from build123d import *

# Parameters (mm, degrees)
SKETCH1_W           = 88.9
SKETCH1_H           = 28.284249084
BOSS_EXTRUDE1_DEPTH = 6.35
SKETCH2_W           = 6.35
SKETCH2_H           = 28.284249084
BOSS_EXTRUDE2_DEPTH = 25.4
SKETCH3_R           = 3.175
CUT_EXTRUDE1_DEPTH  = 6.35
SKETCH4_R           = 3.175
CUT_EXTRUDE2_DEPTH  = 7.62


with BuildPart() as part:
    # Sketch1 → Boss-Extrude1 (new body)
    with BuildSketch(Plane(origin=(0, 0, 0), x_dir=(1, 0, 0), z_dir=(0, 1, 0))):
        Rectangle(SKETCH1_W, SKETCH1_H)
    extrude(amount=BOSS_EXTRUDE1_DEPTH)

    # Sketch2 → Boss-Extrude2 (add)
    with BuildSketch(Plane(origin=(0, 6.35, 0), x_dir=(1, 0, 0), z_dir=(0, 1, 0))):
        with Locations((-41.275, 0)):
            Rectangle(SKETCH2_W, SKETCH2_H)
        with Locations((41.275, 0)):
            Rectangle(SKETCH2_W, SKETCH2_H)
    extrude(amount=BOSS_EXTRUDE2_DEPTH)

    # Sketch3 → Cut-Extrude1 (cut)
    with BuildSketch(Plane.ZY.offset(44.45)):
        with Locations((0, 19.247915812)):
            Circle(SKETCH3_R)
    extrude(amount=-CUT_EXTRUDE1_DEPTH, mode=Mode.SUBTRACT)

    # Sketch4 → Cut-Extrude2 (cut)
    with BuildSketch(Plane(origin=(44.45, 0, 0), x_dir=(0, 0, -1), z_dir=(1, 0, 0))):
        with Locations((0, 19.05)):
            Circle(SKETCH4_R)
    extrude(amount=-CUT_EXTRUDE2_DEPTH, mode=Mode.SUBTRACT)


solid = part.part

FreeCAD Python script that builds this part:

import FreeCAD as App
import Part
import Sketcher
Q = App.Units.Quantity

doc = App.newDocument("Part")
body = doc.addObject("PartDesign::Body", "Body")

sketch1 = body.newObject("Sketcher::SketchObject", "Sketch")
sketch1.AttachmentSupport = (doc.getObject("XZ_Plane"), [""])
sketch1.MapMode = "FlatFace"
sketch1.addGeometry([
    Part.LineSegment(App.Vector(-44, -14, 0), App.Vector(-44, 14, 0)),
    Part.LineSegment(App.Vector(-44, 14, 0), App.Vector(44, 14, 0)),
    Part.LineSegment(App.Vector(44, 14, 0), App.Vector(44, -14, 0)),
    Part.LineSegment(App.Vector(44, -14, 0), App.Vector(-44, -14, 0)),
], False)
sketch1.addConstraint([
    Sketcher.Constraint("Coincident", 0, 2, 1, 1),
    Sketcher.Constraint("Coincident", 1, 2, 2, 1),
    Sketcher.Constraint("Coincident", 2, 2, 3, 1),
    Sketcher.Constraint("Coincident", 3, 2, 0, 1),
    Sketcher.Constraint("Vertical", 0),
    Sketcher.Constraint("Horizontal", 1),
    Sketcher.Constraint("Vertical", 2),
    Sketcher.Constraint("Horizontal", 3),
    Sketcher.Constraint("Symmetric", 0, 2, 2, 2, -1, 1),
    Sketcher.Constraint("DistanceX", 1, 1, 1, 2, Q("3.5 in")),
    Sketcher.Constraint("DistanceY", 0, 1, 0, 2, Q("28.284249 mm")),
])
pad1 = body.newObject("PartDesign::Pad", "Pad")
pad1.Profile = sketch1
pad1.Length = Q("0.25 in")
pad1.Reversed = True

sketch2 = body.newObject("Sketcher::SketchObject", "Sketch001")
sketch2.AttachmentSupport = (doc.getObject("XZ_Plane"), [""])
sketch2.MapMode = "FlatFace"
sketch2.AttachmentOffset = App.Placement(App.Vector(0, 0, -0.25 * 25.4), App.Rotation())
sketch2.addGeometry([
    Part.LineSegment(App.Vector(-44, -14, 0), App.Vector(-44, 14, 0)),
    Part.LineSegment(App.Vector(-44, 14, 0), App.Vector(-38, 14, 0)),
    Part.LineSegment(App.Vector(-38, 14, 0), App.Vector(-38, -14, 0)),
    Part.LineSegment(App.Vector(-38, -14, 0), App.Vector(-44, -14, 0)),
    Part.LineSegment(App.Vector(38, -14, 0), App.Vector(38, 14, 0)),
    Part.LineSegment(App.Vector(38, 14, 0), App.Vector(44, 14, 0)),
    Part.LineSegment(App.Vector(44, 14, 0), App.Vector(44, -14, 0)),
    Part.LineSegment(App.Vector(44, -14, 0), App.Vector(38, -14, 0)),
], False)
sketch2.addConstraint([
    Sketcher.Constraint("Coincident", 0, 2, 1, 1),
    Sketcher.Constraint("Coincident", 1, 2, 2, 1),
    Sketcher.Constraint("Coincident", 2, 2, 3, 1),
    Sketcher.Constraint("Coincident", 3, 2, 0, 1),
    Sketcher.Constraint("Coincident", 4, 2, 5, 1),
    Sketcher.Constraint("Coincident", 5, 2, 6, 1),
    Sketcher.Constraint("Coincident", 6, 2, 7, 1),
    Sketcher.Constraint("Coincident", 7, 2, 4, 1),
    Sketcher.Constraint("Vertical", 0),
    Sketcher.Constraint("Horizontal", 1),
    Sketcher.Constraint("Vertical", 2),
    Sketcher.Constraint("Horizontal", 3),
    Sketcher.Constraint("Vertical", 4),
    Sketcher.Constraint("Horizontal", 5),
    Sketcher.Constraint("Vertical", 6),
    Sketcher.Constraint("Horizontal", 7),
    Sketcher.Constraint("Symmetric", 2, 2, 4, 2, -1, 1),
    Sketcher.Constraint("Symmetric", 0, 2, 6, 2, -1, 1),
    Sketcher.Constraint("Horizontal", 1, 2, 4, 2),
    Sketcher.Constraint("DistanceX", 1, 2, 4, 2, Q("3 in")),
    Sketcher.Constraint("DistanceX", 1, 1, 1, 2, Q("0.25 in")),
    Sketcher.Constraint("DistanceY", 0, 1, 0, 2, Q("28.284249 mm")),
])
pad2 = body.newObject("PartDesign::Pad", "Pad001")
pad2.Profile = sketch2
pad2.Length = Q("1 in")
pad2.Reversed = True

sketch3 = body.newObject("Sketcher::SketchObject", "Sketch002")
sketch3.AttachmentSupport = (doc.getObject("YZ_Plane"), [""])
sketch3.MapMode = "FlatFace"
sketch3.AttachmentOffset = App.Placement(App.Vector(0, 0, -1.75 * 25.4), App.Rotation())
sketch3.addGeometry(Part.Circle(App.Vector(19.2, 0, 0), App.Vector(0, 0, 1), 3.2), False)
sketch3.addConstraint([
    Sketcher.Constraint("PointOnObject", 0, 3, -1),
    Sketcher.Constraint("Diameter", 0, Q("0.25 in")),
    Sketcher.Constraint("DistanceX", -1, 1, 0, 3, Q("19.247916 mm")),
])
pocket1 = body.newObject("PartDesign::Pocket", "Pocket")
pocket1.Profile = sketch3
pocket1.Length = Q("0.25 in")
pocket1.Reversed = True

sketch4 = body.newObject("Sketcher::SketchObject", "Sketch003")
sketch4.AttachmentSupport = (doc.getObject("YZ_Plane"), [""])
sketch4.MapMode = "FlatFace"
sketch4.AttachmentOffset = App.Placement(App.Vector(0, 0, 1.75 * 25.4), App.Rotation())
sketch4.addGeometry(Part.Circle(App.Vector(19.1, 0, 0), App.Vector(0, 0, 1), 3.2), False)
sketch4.addConstraint([
    Sketcher.Constraint("PointOnObject", 0, 3, -1),
    Sketcher.Constraint("Diameter", 0, Q("0.25 in")),
    Sketcher.Constraint("DistanceX", -1, 1, 0, 3, Q("0.75 in")),
])
pocket2 = body.newObject("PartDesign::Pocket", "Pocket001")
pocket2.Profile = sketch4
pocket2.Length = Q("0.3 in")

doc.recompute()
